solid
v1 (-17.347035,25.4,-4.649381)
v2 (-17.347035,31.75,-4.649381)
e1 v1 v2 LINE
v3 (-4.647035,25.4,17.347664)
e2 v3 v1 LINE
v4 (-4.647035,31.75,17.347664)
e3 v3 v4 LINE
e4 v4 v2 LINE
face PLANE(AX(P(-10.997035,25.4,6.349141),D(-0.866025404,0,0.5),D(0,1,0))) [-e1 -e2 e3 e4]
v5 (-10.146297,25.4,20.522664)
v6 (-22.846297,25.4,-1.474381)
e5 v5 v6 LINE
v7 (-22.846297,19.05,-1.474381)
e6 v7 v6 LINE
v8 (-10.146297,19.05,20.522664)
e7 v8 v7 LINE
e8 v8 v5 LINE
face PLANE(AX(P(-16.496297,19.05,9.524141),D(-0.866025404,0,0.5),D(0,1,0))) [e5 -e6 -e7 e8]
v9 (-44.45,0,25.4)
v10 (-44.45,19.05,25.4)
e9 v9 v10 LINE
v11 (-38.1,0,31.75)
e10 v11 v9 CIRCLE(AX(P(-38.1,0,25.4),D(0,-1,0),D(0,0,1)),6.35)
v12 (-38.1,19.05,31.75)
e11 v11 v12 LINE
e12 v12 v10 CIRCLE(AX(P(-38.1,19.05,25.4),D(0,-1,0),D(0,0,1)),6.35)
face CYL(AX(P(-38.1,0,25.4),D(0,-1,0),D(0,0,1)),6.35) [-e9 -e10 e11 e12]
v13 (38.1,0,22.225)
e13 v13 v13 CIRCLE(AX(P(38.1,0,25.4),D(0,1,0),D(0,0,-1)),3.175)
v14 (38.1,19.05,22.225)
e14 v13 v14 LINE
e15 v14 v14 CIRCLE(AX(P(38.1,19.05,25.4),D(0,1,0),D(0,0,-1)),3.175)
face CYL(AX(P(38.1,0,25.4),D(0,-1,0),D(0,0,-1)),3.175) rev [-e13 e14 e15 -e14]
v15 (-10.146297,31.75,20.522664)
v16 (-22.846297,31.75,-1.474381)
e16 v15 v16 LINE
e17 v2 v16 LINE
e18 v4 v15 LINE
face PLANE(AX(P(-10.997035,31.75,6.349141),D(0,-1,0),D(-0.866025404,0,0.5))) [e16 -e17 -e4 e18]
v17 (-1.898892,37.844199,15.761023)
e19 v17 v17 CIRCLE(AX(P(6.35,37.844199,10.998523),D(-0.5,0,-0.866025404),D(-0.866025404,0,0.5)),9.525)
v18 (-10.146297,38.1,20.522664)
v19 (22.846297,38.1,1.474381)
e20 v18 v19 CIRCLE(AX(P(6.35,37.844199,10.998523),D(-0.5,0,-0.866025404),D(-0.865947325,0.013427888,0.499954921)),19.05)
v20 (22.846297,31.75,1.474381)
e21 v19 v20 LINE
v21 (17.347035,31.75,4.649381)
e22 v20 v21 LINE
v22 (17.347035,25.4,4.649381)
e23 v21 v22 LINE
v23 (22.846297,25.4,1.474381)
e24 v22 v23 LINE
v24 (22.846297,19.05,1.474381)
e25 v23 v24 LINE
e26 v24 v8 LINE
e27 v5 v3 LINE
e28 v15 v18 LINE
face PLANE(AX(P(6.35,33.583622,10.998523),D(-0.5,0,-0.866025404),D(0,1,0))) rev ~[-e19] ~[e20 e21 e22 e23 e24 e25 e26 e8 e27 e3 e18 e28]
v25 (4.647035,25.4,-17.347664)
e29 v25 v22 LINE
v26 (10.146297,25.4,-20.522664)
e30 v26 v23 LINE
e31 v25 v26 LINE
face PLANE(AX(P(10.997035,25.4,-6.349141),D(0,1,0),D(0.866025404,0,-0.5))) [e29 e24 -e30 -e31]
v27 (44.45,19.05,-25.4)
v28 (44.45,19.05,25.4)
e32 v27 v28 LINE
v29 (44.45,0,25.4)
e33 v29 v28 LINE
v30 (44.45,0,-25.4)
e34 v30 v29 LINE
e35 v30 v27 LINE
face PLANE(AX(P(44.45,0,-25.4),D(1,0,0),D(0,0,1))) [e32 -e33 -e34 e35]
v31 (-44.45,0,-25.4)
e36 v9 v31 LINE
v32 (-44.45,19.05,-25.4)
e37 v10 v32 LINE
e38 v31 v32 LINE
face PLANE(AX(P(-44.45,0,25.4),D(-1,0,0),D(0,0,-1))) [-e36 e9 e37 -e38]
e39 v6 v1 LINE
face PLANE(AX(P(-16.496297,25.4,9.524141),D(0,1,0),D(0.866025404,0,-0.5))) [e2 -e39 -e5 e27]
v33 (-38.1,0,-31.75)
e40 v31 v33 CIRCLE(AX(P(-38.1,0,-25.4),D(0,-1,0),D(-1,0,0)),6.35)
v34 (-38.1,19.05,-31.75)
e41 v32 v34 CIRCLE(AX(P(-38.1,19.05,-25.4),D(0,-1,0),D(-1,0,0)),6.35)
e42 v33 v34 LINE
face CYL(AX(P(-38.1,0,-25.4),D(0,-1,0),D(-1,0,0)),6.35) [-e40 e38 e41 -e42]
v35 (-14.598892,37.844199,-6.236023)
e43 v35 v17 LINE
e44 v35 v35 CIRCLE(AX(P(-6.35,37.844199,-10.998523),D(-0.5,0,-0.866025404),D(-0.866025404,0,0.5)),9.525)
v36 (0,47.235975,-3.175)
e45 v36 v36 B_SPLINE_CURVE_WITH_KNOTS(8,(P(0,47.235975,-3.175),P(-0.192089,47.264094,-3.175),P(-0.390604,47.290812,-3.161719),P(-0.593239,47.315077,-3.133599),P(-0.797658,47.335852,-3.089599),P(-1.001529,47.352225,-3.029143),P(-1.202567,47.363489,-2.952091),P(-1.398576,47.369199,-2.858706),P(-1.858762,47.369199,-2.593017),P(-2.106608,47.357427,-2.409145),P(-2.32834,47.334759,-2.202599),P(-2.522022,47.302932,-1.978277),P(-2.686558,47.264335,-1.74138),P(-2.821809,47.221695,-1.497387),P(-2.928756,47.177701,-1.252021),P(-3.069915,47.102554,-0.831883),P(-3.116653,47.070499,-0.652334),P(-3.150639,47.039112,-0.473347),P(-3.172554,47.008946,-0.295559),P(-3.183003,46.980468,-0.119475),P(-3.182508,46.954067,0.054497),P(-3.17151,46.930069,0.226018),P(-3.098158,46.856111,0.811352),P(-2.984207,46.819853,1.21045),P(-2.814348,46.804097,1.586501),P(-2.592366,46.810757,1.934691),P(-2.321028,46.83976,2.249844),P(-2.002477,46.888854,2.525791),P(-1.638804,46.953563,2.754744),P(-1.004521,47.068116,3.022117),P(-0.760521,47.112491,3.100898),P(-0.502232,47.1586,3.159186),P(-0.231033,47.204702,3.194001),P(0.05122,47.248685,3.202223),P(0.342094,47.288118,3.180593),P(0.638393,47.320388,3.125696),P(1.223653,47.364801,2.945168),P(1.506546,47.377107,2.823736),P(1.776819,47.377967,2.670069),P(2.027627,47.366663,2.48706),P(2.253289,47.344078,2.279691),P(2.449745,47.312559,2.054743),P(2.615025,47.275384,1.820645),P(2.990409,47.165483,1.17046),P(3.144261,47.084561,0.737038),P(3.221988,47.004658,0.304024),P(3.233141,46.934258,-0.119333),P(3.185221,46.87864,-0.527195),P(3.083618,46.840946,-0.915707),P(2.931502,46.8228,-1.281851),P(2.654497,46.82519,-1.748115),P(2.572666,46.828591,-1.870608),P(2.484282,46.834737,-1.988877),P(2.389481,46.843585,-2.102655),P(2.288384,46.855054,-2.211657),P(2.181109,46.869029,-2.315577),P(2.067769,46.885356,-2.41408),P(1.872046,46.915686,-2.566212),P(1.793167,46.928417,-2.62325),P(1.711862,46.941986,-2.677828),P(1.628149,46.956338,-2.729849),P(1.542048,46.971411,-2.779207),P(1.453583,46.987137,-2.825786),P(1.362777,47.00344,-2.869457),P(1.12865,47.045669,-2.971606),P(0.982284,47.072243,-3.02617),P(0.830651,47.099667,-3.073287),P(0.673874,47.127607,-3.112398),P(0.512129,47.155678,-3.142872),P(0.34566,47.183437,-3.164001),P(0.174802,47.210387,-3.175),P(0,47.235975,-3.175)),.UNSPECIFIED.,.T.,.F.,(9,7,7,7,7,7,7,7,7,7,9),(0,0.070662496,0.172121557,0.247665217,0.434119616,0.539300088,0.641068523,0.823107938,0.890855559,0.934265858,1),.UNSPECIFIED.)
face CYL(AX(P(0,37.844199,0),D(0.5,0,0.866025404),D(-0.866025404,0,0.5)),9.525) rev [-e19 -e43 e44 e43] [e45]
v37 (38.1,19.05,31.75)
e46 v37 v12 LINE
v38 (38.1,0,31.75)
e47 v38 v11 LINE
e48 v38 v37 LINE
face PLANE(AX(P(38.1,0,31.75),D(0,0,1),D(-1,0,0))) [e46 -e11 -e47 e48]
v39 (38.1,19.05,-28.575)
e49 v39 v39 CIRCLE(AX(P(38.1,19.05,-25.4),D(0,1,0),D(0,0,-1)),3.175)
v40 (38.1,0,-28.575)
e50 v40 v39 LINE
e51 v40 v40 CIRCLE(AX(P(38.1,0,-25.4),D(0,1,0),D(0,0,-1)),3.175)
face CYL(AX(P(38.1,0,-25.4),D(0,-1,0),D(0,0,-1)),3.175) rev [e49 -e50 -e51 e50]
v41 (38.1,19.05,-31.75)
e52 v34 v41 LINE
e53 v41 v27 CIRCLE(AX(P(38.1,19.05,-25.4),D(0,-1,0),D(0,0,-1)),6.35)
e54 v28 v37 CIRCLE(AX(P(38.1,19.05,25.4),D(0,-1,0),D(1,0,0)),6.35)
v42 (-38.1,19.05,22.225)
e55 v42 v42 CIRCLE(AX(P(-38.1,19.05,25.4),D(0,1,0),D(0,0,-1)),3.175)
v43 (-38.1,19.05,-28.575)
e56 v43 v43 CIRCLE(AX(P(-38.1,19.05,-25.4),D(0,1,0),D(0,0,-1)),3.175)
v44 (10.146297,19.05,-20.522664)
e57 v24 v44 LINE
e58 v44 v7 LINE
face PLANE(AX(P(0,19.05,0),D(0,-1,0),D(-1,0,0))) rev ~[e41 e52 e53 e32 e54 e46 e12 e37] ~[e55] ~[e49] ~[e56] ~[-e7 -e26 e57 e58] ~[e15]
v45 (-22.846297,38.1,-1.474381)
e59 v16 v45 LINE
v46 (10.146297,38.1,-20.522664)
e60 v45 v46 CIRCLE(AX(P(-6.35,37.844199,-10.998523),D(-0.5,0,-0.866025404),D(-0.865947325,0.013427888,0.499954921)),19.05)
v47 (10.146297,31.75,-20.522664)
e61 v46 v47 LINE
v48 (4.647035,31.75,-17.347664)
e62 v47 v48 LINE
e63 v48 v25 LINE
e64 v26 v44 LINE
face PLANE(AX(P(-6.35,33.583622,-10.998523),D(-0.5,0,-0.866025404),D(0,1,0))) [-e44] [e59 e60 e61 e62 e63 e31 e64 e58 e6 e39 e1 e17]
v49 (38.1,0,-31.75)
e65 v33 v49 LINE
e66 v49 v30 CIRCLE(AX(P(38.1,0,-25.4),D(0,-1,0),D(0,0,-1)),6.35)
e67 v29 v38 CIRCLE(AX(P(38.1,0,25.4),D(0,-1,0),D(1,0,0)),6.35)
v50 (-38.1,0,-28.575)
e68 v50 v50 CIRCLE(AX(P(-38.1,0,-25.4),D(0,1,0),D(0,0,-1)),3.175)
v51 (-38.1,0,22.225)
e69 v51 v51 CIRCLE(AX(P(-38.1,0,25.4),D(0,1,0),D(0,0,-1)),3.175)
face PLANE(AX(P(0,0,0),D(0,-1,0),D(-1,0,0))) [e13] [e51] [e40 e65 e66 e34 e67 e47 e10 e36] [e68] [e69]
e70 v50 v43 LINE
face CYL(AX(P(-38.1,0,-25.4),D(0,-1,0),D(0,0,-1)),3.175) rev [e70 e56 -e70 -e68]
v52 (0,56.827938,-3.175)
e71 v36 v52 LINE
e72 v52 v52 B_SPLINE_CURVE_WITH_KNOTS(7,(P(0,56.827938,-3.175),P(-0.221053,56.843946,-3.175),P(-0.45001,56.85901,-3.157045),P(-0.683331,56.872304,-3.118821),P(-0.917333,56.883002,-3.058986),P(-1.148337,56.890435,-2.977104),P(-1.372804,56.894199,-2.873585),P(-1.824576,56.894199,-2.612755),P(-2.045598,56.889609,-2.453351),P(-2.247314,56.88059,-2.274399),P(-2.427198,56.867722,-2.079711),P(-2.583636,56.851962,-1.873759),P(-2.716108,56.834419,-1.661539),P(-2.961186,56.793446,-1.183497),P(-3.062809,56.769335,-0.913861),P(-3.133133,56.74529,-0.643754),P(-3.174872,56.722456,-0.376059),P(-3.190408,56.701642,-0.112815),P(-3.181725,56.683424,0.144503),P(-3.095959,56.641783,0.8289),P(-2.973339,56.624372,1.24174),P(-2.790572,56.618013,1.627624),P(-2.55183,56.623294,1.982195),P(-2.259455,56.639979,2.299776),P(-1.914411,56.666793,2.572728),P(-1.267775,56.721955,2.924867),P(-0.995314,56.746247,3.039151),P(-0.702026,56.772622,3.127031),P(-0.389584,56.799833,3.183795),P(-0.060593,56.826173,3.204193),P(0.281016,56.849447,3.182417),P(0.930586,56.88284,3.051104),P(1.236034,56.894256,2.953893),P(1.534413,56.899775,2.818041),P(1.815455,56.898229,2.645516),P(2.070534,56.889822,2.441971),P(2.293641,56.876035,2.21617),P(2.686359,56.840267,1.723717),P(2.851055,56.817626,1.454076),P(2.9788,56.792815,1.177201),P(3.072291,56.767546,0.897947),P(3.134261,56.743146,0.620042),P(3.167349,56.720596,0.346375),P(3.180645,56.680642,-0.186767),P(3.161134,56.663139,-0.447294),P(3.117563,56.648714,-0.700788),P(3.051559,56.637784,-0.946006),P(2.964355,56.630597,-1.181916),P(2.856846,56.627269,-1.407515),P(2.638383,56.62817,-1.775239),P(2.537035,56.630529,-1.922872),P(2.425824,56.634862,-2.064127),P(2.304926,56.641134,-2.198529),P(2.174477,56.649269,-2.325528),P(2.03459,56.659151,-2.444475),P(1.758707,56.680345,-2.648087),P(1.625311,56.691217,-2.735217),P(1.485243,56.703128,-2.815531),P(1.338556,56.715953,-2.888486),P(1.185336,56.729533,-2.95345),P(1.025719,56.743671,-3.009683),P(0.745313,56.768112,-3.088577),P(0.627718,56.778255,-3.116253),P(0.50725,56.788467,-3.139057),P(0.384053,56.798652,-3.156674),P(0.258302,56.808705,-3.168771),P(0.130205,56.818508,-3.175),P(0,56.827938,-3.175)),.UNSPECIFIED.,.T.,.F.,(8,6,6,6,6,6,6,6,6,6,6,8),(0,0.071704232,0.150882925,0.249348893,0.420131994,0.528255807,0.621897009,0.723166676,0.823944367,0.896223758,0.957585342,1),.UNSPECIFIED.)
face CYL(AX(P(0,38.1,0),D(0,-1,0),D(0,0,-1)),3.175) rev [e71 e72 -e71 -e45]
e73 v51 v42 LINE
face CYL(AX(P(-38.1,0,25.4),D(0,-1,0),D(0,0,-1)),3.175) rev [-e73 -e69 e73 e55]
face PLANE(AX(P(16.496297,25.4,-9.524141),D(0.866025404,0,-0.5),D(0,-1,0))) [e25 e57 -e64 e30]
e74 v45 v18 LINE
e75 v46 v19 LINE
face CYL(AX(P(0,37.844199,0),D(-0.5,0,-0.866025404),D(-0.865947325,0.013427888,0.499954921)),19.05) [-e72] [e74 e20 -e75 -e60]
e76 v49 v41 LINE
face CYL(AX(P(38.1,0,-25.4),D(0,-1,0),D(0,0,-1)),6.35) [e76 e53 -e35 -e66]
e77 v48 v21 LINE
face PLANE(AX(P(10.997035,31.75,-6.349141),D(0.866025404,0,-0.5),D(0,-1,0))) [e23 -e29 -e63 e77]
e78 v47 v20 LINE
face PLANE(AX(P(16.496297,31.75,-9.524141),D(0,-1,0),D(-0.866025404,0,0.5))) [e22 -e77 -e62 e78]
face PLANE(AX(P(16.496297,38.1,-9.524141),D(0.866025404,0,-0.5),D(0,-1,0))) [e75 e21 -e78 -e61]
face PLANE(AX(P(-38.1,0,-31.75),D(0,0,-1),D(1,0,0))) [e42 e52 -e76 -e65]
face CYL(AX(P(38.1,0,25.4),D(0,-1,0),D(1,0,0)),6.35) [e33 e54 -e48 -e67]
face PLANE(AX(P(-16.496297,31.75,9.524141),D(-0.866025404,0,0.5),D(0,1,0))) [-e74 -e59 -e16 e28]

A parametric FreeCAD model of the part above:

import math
import FreeCAD as App
import Part
import Sketcher
from FreeCAD import Vector
Q = App.Units.Quantity

doc = App.newDocument("Part")
body = doc.addObject("PartDesign::Body", "Body")

sketch1 = body.newObject("Sketcher::SketchObject", "Sketch")
sketch1.AttachmentSupport = (doc.getObject("XZ_Plane"), [""])
sketch1.MapMode = "FlatFace"
sketch1.addGeometry([
    Part.LineSegment(Vector(38.1, -31.8, 0), Vector(-38.1, -31.8, 0)),
    Part.ArcOfCircle(Part.Circle(Vector(-38.1, -25.4, 0), Vector(0, 0, 1), 6.3), math.radians(180), math.radians(270)),
    Part.LineSegment(Vector(-44.5, -25.4, 0), Vector(-44.5, 25.4, 0)),
    Part.ArcOfCircle(Part.Circle(Vector(-38.1, 25.4, 0), Vector(0, 0, 1), 6.3), math.radians(90), math.radians(180)),
    Part.LineSegment(Vector(-38.1, 31.8, 0), Vector(38.1, 31.8, 0)),
    Part.ArcOfCircle(Part.Circle(Vector(38.1, 25.4, 0), Vector(0, 0, 1), 6.3), math.radians(0), math.radians(90)),
    Part.LineSegment(Vector(44.5, 25.4, 0), Vector(44.5, -25.4, 0)),
    Part.ArcOfCircle(Part.Circle(Vector(38.1, -25.4, 0), Vector(0, 0, 1), 6.3), math.radians(-90), math.radians(0)),
    Part.Circle(Vector(38.1, 25.4, 0), Vector(0, 0, 1), 3.2),
    Part.Circle(Vector(-38.1, 25.4, 0), Vector(0, 0, 1), 3.2),
    Part.Circle(Vector(38.1, -25.4, 0), Vector(0, 0, 1), 3.2),
    Part.Circle(Vector(-38.1, -25.4, 0), Vector(0, 0, 1), 3.2),
], False)
sketch1.addConstraint([
    Sketcher.Constraint("Tangent", 0, 2, 1, 2),
    Sketcher.Constraint("Tangent", 1, 1, 2, 1),
    Sketcher.Constraint("Tangent", 2, 2, 3, 2),
    Sketcher.Constraint("Tangent", 3, 1, 4, 1),
    Sketcher.Constraint("Tangent", 4, 2, 5, 2),
    Sketcher.Constraint("Tangent", 5, 1, 6, 1),
    Sketcher.Constraint("Tangent", 6, 2, 7, 2),
    Sketcher.Constraint("Tangent", 7, 1, 0, 1),
    Sketcher.Constraint("Horizontal", 0),
    Sketcher.Constraint("Vertical", 2),
    Sketcher.Constraint("Horizontal", 4),
    Sketcher.Constraint("Vertical", 6),
    Sketcher.Constraint("Coincident", 8, 3, 5, 3),
    Sketcher.Constraint("Coincident", 9, 3, 3, 3),
    Sketcher.Constraint("Coincident", 10, 3, 7, 3),
    Sketcher.Constraint("Coincident", 11, 3, 1, 3),
    Sketcher.Constraint("Equal", 1, 3),
    Sketcher.Constraint("Equal", 3, 5),
    Sketcher.Constraint("Equal", 5, 7),
    Sketcher.Constraint("Equal", 8, 9),
    Sketcher.Constraint("Equal", 9, 10),
    Sketcher.Constraint("Equal", 10, 11),
    Sketcher.Constraint("Symmetric", 1, 3, 5, 3, -1, 1),
    Sketcher.Constraint("Diameter", 8, Q("0.25 in")),
    Sketcher.Constraint("DistanceX", 0, 2, 0, 1, Q("3 in")),
    Sketcher.Constraint("DistanceY", 2, 1, 2, 2, Q("2 in")),
    Sketcher.Constraint("Radius", 1, Q("0.25 in")),
])
pad1 = body.newObject("PartDesign::Pad", "Pad")
pad1.Profile = sketch1
pad1.Length = Q("0.75 in")
pad1.Reversed = True

sketch2 = body.newObject("Sketcher::SketchObject", "Sketch001")
sketch2.Placement = App.Placement(Vector(0, 0, 0), App.Rotation(Vector(0, 1, 0), Vector(0.866025404, 0, -0.5), Vector(-0.5, 0, -0.866025404), "ZXY"))
sketch2.addGeometry([
    Part.LineSegment(Vector(25, 19, 0), Vector(19, 19, 0)),
    Part.LineSegment(Vector(19, 19, 0), Vector(19, -19, 0)),
    Part.LineSegment(Vector(19, -19, 0), Vector(25, -19, 0)),
    Part.LineSegment(Vector(25, -19, 0), Vector(25, -13, 0)),
    Part.LineSegment(Vector(25, -13, 0), Vector(32, -13, 0)),
    Part.LineSegment(Vector(32, -13, 0), Vector(32, -19, 0)),
    Part.LineSegment(Vector(32, -19, 0), Vector(38, -19, 0)),
    Part.ArcOfCircle(Part.Circle(Vector(38, 0, 0), Vector(0, 0, 1), 19), math.radians(-89), math.radians(89)),
    Part.LineSegment(Vector(38, 19, 0), Vector(32, 19, 0)),
    Part.LineSegment(Vector(32, 19, 0), Vector(32, 13, 0)),
    Part.LineSegment(Vector(32, 13, 0), Vector(25, 13, 0)),
    Part.LineSegment(Vector(25, 13, 0), Vector(25, 19, 0)),
    Part.Circle(Vector(38, 0, 0), Vector(0, 0, 1), 10),
], False)
sketch2.addConstraint([
    Sketcher.Constraint("Coincident", 0, 2, 1, 1),
    Sketcher.Constraint("Coincident", 1, 2, 2, 1),
    Sketcher.Constraint("Coincident", 2, 2, 3, 1),
    Sketcher.Constraint("Coincident", 3, 2, 4, 1),
    Sketcher.Constraint("Coincident", 4, 2, 5, 1),
    Sketcher.Constraint("Coincident", 5, 2, 6, 1),
    Sketcher.Constraint("Coincident", 6, 2, 7, 1),
    Sketcher.Constraint("Coincident", 7, 2, 8, 1),
    Sketcher.Constraint("Coincident", 8, 2, 9, 1),
    Sketcher.Constraint("Coincident", 9, 2, 10, 1),
    Sketcher.Constraint("Coincident", 10, 2, 11, 1),
    Sketcher.Constraint("Coincident", 11, 2, 0, 1),
    Sketcher.Constraint("Horizontal", 0),
    Sketcher.Constraint("Vertical", 1),
    Sketcher.Constraint("Horizontal", 2),
    Sketcher.Constraint("Vertical", 3),
    Sketcher.Constraint("Horizontal", 4),
    Sketcher.Constraint("Vertical", 5),
    Sketcher.Constraint("Horizontal", 6),
    Sketcher.Constraint("Horizontal", 8),
    Sketcher.Constraint("Vertical", 9),
    Sketcher.Constraint("Horizontal", 10),
    Sketcher.Constraint("Vertical", 11),
    Sketcher.Constraint("Coincident", 12, 3, 7, 3),
    Sketcher.Constraint("Symmetric", 6, 2, 7, 2, -1),
    Sketcher.Constraint("Symmetric", 4, 2, 9, 2, -1),
    Sketcher.Constraint("Symmetric", 2, 2, 11, 2, -1),
    Sketcher.Constraint("Horizontal", 2, 2, 5, 2),
    Sketcher.Constraint("Equal", 2, 4),
    Sketcher.Constraint("Equal", 4, 6),
    Sketcher.Constraint("Equal", 10, 3),
    Sketcher.Constraint("Diameter", 12, Q("0.75 in")),
    Sketcher.Constraint("Radius", 7, Q("0.75 in")),
    Sketcher.Constraint("DistanceX", -1, 1, 2, 2, Q("1 in")),
    Sketcher.Constraint("DistanceX", 0, 2, 0, 1, Q("0.25 in")),
    Sketcher.Constraint("DistanceX", -1, 1, 7, 3, Q("37.844199 mm")),
])
pad2 = body.newObject("PartDesign::Pad", "Pad001")
pad2.Profile = sketch2
pad2.Length = Q("1 in")
pad2.Midplane = True

sketch3 = body.newObject("Sketcher::SketchObject", "Sketch002")
sketch3.AttachmentSupport = (doc.getObject("XZ_Plane"), [""])
sketch3.MapMode = "FlatFace"
sketch3.AttachmentOffset = App.Placement(Vector(0, 0, -1.5 * 25.4), App.Rotation())
sketch3.addGeometry(Part.Circle(Vector(0, 0, 0), Vector(0, 0, 1), 3.2), False)
sketch3.addConstraint([
    Sketcher.Constraint("Coincident", 0, 3, -1, 1),
    Sketcher.Constraint("Diameter", 0, Q("0.25 in")),
])
pocket1 = body.newObject("PartDesign::Pocket", "Pocket")
pocket1.Profile = sketch3
pocket1.Type = "ThroughAll"

doc.recompute()
